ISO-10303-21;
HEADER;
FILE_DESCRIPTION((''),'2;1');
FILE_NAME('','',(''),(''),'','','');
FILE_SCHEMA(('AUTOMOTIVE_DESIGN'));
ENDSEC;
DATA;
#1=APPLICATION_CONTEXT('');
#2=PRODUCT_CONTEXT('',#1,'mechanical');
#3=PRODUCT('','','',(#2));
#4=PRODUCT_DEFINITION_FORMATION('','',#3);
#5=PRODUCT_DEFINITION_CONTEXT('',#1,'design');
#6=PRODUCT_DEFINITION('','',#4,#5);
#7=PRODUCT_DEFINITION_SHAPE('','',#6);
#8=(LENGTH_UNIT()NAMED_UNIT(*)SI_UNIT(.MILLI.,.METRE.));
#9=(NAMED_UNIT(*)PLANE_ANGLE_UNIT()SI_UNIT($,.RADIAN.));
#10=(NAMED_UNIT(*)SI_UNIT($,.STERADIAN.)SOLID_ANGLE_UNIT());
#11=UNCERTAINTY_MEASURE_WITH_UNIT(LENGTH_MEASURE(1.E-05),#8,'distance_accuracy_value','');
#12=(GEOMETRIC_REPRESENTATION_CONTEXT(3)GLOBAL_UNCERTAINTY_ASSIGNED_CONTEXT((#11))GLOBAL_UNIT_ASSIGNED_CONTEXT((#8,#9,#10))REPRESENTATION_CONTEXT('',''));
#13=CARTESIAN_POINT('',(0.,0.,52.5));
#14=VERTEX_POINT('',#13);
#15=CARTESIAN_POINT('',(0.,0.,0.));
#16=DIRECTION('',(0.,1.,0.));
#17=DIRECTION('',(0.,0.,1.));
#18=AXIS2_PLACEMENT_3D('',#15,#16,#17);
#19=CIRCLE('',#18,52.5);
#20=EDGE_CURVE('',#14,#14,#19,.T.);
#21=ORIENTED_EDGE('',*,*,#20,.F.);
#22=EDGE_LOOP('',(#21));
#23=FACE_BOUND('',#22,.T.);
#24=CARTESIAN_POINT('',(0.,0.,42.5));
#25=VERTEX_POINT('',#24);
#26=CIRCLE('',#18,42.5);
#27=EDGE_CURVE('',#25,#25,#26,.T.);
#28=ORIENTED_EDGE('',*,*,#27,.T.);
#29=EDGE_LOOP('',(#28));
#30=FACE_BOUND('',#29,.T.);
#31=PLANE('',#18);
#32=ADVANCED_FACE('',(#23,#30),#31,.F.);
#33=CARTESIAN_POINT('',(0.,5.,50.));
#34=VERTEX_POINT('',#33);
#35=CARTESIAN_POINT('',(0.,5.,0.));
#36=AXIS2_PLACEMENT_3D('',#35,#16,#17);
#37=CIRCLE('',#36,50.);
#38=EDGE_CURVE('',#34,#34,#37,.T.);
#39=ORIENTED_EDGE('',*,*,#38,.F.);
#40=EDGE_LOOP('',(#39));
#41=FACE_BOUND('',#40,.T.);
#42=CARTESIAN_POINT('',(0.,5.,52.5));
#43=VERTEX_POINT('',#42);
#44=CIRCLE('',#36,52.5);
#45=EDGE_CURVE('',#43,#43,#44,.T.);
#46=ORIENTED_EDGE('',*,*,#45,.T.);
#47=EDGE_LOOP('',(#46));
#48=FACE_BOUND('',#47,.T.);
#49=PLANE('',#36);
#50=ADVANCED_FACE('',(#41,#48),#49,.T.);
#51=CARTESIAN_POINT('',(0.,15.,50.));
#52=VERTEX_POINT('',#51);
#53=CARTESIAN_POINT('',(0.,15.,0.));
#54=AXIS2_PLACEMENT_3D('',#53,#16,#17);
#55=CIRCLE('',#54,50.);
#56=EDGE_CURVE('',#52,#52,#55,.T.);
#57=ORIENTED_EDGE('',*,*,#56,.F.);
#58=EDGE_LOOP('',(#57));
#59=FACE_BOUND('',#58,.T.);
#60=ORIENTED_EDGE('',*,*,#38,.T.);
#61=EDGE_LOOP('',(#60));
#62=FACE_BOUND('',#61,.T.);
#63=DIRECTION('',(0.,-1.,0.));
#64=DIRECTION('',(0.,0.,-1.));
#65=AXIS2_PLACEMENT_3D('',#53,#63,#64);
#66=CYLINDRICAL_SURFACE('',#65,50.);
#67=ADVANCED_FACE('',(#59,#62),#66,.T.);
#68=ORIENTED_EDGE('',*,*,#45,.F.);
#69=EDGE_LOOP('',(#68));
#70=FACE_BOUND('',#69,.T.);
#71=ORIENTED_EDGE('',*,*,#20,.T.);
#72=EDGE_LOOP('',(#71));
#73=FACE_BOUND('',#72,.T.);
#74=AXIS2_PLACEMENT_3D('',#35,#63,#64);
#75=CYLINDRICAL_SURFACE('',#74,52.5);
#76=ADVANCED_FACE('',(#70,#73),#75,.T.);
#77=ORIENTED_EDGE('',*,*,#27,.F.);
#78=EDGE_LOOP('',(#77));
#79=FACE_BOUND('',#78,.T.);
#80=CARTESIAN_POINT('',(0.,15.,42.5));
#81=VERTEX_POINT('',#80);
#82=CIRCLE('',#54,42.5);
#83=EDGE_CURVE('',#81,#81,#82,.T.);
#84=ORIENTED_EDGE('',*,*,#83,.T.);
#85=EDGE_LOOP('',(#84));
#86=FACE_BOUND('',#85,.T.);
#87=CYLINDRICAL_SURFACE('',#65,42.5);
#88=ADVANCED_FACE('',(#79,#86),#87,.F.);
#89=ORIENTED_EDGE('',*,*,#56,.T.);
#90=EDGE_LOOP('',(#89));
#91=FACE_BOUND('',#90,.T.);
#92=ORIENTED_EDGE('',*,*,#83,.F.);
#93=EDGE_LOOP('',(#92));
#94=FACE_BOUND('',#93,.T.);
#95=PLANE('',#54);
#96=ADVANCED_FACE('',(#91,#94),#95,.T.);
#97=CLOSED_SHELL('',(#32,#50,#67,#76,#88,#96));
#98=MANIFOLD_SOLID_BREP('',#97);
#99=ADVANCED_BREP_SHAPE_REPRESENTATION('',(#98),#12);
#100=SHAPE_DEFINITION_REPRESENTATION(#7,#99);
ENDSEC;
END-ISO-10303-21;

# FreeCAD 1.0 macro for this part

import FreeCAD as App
import Part
import Sketcher

doc = App.newDocument("Part")
body = doc.addObject("PartDesign::Body", "Body")

# Sketch on XZ plane
sketch1 = doc.addObject("Sketcher::SketchObject", "Sketch")
body.addObject(sketch1)
sketch1.AttachmentSupport = (doc.XZ_Plane, [""])
sketch1.MapMode = "FlatFace"
sketch1.addGeometry(Part.Circle(App.Vector(0, 0, 0), App.Vector(0, 0, 1), 52), False)
sketch1.addConstraint(Sketcher.Constraint("Coincident", 0, 3, -1, 1))
sketch1.addConstraint(Sketcher.Constraint("Diameter", 0, 105.0))
pad1 = doc.addObject("PartDesign::Pad", "Pad")
body.addObject(pad1)
pad1.Profile = sketch1
pad1.Length = 5
pad1.Reversed = True

# Sketch on XZ plane
sketch2 = doc.addObject("Sketcher::SketchObject", "Sketch001")
body.addObject(sketch2)
sketch2.AttachmentSupport = (doc.XZ_Plane, [""])
sketch2.MapMode = "FlatFace"
sketch2.AttachmentOffset = App.Placement(App.Vector(0, 0, -5), App.Rotation())
sketch2.addGeometry(Part.Circle(App.Vector(0, 0, 0), App.Vector(0, 0, 1), 50), False)
sketch2.addGeometry(Part.Circle(App.Vector(0, 0, 0), App.Vector(0, 0, 1), 42), False)
sketch2.addConstraint(Sketcher.Constraint("Coincident", 0, 3, -1, 1))
sketch2.addConstraint(Sketcher.Constraint("Coincident", 1, 3, -1, 1))
sketch2.addConstraint(Sketcher.Constraint("Diameter", 0, 100.0))
sketch2.addConstraint(Sketcher.Constraint("Diameter", 1, 85.0))
pad2 = doc.addObject("PartDesign::Pad", "Pad001")
body.addObject(pad2)
pad2.Profile = sketch2
pad2.Length = 10
pad2.Reversed = True

# Sketch on XZ plane
sketch3 = doc.addObject("Sketcher::SketchObject", "Sketch002")
body.addObject(sketch3)
sketch3.AttachmentSupport = (doc.XZ_Plane, [""])
sketch3.MapMode = "FlatFace"
sketch3.AttachmentOffset = App.Placement(App.Vector(0, 0, -5), App.Rotation())
sketch3.addGeometry(Part.Circle(App.Vector(0, 0, 0), App.Vector(0, 0, 1), 42), False)
sketch3.addConstraint(Sketcher.Constraint("Coincident", 0, 3, -1, 1))
sketch3.addConstraint(Sketcher.Constraint("Diameter", 0, 85.0))
pocket1 = doc.addObject("PartDesign::Pocket", "Pocket")
body.addObject(pocket1)
pocket1.Profile = sketch3
pocket1.Type = "ThroughAll"
pocket1.Reversed = True

doc.recompute()
